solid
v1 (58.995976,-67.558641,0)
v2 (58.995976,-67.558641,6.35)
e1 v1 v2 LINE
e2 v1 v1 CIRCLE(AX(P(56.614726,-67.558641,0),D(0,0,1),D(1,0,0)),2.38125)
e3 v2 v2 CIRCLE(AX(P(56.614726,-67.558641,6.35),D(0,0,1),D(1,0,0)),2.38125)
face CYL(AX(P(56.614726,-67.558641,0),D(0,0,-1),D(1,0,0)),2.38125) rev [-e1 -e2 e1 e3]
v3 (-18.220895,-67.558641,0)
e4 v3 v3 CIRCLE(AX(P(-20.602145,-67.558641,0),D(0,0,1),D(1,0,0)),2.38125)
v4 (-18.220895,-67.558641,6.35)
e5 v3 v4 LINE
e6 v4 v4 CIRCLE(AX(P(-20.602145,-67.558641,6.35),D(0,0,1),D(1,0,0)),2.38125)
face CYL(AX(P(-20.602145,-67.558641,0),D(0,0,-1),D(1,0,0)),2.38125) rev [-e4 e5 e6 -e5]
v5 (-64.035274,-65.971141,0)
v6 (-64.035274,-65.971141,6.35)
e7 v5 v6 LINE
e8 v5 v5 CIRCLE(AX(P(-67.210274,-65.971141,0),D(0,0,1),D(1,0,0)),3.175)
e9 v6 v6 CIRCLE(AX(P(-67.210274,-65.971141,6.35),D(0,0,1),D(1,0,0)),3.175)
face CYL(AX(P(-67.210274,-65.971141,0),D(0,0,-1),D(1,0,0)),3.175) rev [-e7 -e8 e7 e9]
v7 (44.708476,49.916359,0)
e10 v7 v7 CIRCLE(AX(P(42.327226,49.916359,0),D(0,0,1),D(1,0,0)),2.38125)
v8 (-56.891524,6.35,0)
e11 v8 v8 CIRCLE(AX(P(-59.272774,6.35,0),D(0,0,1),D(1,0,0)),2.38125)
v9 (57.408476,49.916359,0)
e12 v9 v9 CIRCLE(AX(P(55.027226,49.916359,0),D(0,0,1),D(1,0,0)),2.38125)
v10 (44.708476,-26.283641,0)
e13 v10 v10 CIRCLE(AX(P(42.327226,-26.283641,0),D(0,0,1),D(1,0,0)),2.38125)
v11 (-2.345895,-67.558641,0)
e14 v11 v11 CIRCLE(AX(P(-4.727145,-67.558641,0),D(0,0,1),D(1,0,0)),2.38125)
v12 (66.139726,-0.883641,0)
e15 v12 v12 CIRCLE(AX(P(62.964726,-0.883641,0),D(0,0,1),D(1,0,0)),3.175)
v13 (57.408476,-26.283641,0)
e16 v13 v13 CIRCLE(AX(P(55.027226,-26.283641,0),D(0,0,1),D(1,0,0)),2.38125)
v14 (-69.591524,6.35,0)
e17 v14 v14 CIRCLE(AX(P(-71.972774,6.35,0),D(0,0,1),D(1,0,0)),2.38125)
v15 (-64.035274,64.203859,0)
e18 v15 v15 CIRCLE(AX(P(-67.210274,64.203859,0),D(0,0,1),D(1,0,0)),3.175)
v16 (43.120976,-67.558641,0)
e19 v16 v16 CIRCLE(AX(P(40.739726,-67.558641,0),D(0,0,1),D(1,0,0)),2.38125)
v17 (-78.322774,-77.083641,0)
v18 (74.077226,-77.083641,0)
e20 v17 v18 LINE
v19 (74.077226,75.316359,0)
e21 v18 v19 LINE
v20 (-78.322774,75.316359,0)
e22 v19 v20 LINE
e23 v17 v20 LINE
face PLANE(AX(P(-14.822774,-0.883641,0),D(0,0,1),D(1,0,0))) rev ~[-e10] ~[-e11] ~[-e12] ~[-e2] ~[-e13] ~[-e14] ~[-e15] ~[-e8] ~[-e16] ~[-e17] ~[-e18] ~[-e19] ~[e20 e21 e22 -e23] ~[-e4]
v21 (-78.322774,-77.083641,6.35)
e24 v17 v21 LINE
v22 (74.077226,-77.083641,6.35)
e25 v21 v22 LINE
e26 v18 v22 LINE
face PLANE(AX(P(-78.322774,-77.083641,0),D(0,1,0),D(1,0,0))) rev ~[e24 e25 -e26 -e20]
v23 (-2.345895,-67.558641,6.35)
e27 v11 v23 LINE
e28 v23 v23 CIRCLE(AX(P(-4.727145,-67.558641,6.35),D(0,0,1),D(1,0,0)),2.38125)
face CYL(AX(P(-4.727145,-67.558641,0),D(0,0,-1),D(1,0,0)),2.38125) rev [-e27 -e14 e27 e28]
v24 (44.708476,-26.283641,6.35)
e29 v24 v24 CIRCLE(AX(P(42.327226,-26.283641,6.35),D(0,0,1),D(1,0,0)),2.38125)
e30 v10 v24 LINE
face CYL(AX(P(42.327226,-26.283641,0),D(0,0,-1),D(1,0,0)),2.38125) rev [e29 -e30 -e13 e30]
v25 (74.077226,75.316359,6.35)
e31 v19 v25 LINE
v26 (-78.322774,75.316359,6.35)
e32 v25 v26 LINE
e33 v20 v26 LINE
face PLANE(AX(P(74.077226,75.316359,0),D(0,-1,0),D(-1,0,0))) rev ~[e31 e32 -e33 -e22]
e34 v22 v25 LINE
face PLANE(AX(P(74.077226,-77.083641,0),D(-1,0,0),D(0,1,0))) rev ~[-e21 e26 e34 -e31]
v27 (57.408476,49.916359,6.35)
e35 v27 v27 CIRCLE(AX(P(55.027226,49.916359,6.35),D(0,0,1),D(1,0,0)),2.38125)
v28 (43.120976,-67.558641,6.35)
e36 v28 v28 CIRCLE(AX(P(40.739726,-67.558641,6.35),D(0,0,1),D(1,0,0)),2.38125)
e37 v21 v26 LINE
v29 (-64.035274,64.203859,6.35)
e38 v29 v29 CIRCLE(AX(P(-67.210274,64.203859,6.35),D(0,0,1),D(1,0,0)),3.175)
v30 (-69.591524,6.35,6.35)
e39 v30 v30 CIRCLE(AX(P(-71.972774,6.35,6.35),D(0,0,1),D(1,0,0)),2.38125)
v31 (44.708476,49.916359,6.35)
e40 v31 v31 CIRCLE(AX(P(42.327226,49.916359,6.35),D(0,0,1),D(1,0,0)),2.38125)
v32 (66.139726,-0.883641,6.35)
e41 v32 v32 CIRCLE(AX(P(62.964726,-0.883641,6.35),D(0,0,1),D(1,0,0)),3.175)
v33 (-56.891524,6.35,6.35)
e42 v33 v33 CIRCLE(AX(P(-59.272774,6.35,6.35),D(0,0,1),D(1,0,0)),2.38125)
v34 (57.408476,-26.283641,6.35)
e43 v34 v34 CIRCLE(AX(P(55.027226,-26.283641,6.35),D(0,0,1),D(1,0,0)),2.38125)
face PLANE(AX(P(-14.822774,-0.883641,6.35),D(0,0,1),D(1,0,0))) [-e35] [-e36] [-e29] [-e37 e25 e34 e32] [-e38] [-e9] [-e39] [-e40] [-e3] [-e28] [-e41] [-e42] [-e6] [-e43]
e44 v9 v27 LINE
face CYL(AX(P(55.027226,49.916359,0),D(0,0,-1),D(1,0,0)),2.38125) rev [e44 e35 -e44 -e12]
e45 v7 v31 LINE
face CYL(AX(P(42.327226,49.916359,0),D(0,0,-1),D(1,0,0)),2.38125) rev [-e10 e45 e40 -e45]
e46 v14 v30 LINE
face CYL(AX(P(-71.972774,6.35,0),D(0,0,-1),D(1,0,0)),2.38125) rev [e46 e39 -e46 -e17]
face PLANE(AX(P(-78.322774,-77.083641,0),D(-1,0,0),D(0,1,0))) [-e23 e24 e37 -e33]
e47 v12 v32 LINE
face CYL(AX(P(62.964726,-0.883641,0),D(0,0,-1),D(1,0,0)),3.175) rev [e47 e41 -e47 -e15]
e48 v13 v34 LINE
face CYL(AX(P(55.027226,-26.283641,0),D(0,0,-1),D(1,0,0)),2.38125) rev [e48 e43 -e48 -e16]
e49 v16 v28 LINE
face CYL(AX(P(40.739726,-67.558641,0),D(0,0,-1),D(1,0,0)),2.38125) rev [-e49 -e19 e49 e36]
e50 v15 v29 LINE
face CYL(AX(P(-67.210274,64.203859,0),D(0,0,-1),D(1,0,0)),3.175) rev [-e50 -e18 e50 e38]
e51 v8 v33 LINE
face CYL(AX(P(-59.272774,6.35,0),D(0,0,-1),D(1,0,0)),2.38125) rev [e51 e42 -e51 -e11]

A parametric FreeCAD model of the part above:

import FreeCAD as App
import Part
import Sketcher
from FreeCAD import Vector
Q = App.Units.Quantity

doc = App.newDocument("Part")
body = doc.addObject("PartDesign::Body", "Body")

# Sketch on XY plane
sketch1 = body.newObject("Sketcher::SketchObject", "Sketch")
sketch1.AttachmentSupport = (doc.getObject("XY_Plane"), [""])
sketch1.MapMode = "FlatFace"
sketch1.addGeometry([
    Part.LineSegment(Vector(-78.322774, 75.316359, 0), Vector(-78.322774, -77.083641, 0)),  # 0
    Part.LineSegment(Vector(-78.322774, -77.083641, 0), Vector(74.077226, -77.083641, 0)),  # 1
    Part.LineSegment(Vector(74.077226, -77.083641, 0), Vector(74.077226, 75.316359, 0)),  # 2
    Part.LineSegment(Vector(74.077226, 75.316359, 0), Vector(-78.322774, 75.316359, 0)),  # 3
    Part.Circle(Vector(-67.210274, -65.971141, 0), Vector(0, 0, 1), 3.175),  # 4
    Part.Circle(Vector(-20.602145, -67.558641, 0), Vector(0, 0, 1), 2.38125),  # 5
    Part.Circle(Vector(-4.727145, -67.558641, 0), Vector(0, 0, 1), 2.38125),  # 6
    Part.Circle(Vector(40.739726, -67.558641, 0), Vector(0, 0, 1), 2.38125),  # 7
    Part.Circle(Vector(56.614726, -67.558641, 0), Vector(0, 0, 1), 2.38125),  # 8
    Part.Circle(Vector(42.327226, -26.283641, 0), Vector(0, 0, 1), 2.38125),  # 9
    Part.Circle(Vector(55.027226, -26.283641, 0), Vector(0, 0, 1), 2.38125),  # 10
    Part.Circle(Vector(-71.972774, 6.35, 0), Vector(0, 0, 1), 2.38125),  # 11
    Part.Circle(Vector(-59.272774, 6.35, 0), Vector(0, 0, 1), 2.38125),  # 12
    Part.Circle(Vector(-67.210274, 64.203859, 0), Vector(0, 0, 1), 3.175),  # 13
    Part.Circle(Vector(62.964726, -0.883641, 0), Vector(0, 0, 1), 3.175),  # 14
    Part.Circle(Vector(42.327226, 49.916359, 0), Vector(0, 0, 1), 2.38125),  # 15
    Part.Circle(Vector(55.027226, 49.916359, 0), Vector(0, 0, 1), 2.38125),  # 16
], False)
sketch1.addConstraint([
    Sketcher.Constraint("Coincident", 0, 2, 1, 1),
    Sketcher.Constraint("Coincident", 1, 2, 2, 1),
    Sketcher.Constraint("Coincident", 2, 2, 3, 1),
    Sketcher.Constraint("Coincident", 3, 2, 0, 1),
    Sketcher.Constraint("Vertical", 0),
    Sketcher.Constraint("Horizontal", 1),
    Sketcher.Constraint("Vertical", 2),
    Sketcher.Constraint("Horizontal", 3),
    Sketcher.Constraint("Equal", 5, 6),
    Sketcher.Constraint("Equal", 6, 7),
    Sketcher.Constraint("Equal", 7, 8),
    Sketcher.Constraint("Equal", 8, 9),
    Sketcher.Constraint("Equal", 9, 10),
    Sketcher.Constraint("Equal", 10, 11),
    Sketcher.Constraint("Equal", 11, 12),
    Sketcher.Constraint("Equal", 4, 13),
    Sketcher.Constraint("Equal", 13, 14),
    Sketcher.Constraint("Equal", 12, 15),
    Sketcher.Constraint("Equal", 15, 16),
    Sketcher.Constraint("Horizontal", 5, 3, 6, 3),
    Sketcher.Constraint("Horizontal", 6, 3, 7, 3),
    Sketcher.Constraint("Horizontal", 7, 3, 8, 3),
    Sketcher.Constraint("Horizontal", 9, 3, 10, 3),
    Sketcher.Constraint("Horizontal", 11, 3, 12, 3),
    Sketcher.Constraint("Horizontal", 15, 3, 16, 3),
    Sketcher.Constraint("Vertical", 4, 3, 13, 3),
    Sketcher.Constraint("Vertical", 9, 3, 15, 3),
    Sketcher.Constraint("Vertical", 10, 3, 16, 3),
    Sketcher.Constraint("Equal", 3, 0),
    Sketcher.Constraint("Diameter", 4, Q("0.25 in")),
    Sketcher.Constraint("DistanceX", 1, 1, 1, 2, Q("6 in")),
    Sketcher.Constraint("Diameter", 5, Q("0.1875 in")),
    Sketcher.Constraint("DistanceX", 11, 3, 10, 3, Q("5 in")),
    Sketcher.Constraint("DistanceX", 12, 3, 9, 3, Q("4 in")),
    Sketcher.Constraint("DistanceY", 10, 3, 14, 3, Q("1 in")),
    Sketcher.Constraint("DistanceY", 14, 3, 15, 3, Q("2 in")),
    Sketcher.Constraint("DistanceY", 1, 2, 10, 3, Q("2 in")),
    Sketcher.Constraint("DistanceX", 9, 3, 10, 3, Q("0.5 in")),
    Sketcher.Constraint("DistanceY", -1, 1, 11, 3, Q("0.25 in")),
    Sketcher.Constraint("DistanceX", 4, 3, 7, 3, Q("4.25 in")),
    Sketcher.Constraint("DistanceX", 8, 3, 14, 3, Q("0.25 in")),
    Sketcher.Constraint("DistanceX", 0, 2, 11, 3, Q("0.25 in")),
    Sketcher.Constraint("DistanceY", 5, 3, 4, 3, Q("0.0625 in")),
    Sketcher.Constraint("DistanceX", 5, 3, 6, 3, Q("0.625 in")),
    Sketcher.Constraint("DistanceX", 7, 3, 8, 3, Q("0.625 in")),
    Sketcher.Constraint("DistanceX", 7, 3, 9, 3, Q("0.0625 in")),
    Sketcher.Constraint("DistanceY", 7, 3, 9, 3, Q("1.625 in")),
    Sketcher.Constraint("DistanceY", 4, 3, 13, 3, Q("5.125 in")),
    Sketcher.Constraint("DistanceY", 4, 3, -1, 1, Q("65.971141 mm")),
    Sketcher.Constraint("DistanceX", 4, 3, 5, 3, Q("46.608129 mm")),
    Sketcher.Constraint("DistanceX", 4, 3, -1, 1, Q("67.210274 mm")),
])
pad1 = body.newObject("PartDesign::Pad", "Pad")
pad1.Profile = sketch1
pad1.Length = Q("0.25 in")

doc.recompute()
